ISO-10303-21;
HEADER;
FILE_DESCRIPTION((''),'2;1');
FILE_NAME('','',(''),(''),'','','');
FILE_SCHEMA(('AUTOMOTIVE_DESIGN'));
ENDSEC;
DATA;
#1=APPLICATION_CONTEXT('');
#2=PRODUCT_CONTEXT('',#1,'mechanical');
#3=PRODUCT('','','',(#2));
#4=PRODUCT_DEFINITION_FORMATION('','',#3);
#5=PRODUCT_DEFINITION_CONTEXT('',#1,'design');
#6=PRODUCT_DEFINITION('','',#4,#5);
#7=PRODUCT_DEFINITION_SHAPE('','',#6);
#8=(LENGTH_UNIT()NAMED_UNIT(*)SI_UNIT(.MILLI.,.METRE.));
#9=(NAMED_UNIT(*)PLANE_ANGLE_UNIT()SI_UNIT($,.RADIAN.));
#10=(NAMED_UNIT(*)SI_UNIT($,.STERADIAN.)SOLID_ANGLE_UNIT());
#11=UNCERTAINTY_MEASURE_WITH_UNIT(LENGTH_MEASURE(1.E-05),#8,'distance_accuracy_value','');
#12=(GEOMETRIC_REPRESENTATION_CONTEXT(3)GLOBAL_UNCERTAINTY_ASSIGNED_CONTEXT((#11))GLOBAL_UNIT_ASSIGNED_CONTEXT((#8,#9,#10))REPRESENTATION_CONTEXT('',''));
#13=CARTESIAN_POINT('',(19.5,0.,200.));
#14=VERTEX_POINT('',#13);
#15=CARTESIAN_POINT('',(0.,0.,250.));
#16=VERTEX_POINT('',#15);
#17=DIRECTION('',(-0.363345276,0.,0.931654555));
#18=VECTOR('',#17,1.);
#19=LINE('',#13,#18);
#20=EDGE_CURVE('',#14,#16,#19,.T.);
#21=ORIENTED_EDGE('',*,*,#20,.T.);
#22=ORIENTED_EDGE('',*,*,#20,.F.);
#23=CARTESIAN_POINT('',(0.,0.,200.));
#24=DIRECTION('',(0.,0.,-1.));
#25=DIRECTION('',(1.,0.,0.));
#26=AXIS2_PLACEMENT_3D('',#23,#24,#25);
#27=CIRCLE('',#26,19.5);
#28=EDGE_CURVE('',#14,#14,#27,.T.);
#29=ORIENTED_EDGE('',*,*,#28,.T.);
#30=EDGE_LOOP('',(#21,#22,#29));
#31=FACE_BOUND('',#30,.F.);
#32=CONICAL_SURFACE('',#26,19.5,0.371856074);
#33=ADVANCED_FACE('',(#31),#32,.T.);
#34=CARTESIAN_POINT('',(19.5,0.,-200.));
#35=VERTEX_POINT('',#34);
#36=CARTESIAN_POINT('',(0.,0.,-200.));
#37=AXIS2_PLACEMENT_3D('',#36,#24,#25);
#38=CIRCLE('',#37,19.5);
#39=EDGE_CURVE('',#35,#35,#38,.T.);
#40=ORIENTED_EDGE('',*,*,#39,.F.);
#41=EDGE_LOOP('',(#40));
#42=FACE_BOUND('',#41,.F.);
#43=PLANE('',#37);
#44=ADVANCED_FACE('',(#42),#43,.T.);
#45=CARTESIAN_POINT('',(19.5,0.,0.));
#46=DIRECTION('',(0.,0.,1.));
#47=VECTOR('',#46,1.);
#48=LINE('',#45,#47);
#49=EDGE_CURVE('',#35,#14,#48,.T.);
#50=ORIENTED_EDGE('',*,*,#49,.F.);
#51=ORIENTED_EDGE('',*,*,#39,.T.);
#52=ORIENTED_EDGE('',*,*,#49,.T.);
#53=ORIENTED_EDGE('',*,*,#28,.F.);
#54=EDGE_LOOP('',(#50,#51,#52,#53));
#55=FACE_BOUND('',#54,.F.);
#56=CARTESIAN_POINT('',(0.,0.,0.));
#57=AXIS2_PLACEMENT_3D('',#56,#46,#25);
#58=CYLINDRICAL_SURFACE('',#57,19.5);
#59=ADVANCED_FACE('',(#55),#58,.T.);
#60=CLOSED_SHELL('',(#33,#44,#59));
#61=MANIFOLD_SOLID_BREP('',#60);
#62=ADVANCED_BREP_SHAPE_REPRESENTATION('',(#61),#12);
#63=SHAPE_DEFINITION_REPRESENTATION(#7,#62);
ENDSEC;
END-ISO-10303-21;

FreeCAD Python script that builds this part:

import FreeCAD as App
import Part
import Sketcher

V = App.Vector
Q = App.Units.Quantity


def add_polygon(sketch, points):
    """Adds a closed chain of lines whose ends are joined by coincident constraints."""
    first, n = sketch.GeometryCount, len(points)
    for a, b in zip(points, points[1:] + points[:1]):
        sketch.addGeometry(Part.LineSegment(App.Vector(*a, 0), App.Vector(*b, 0)), False)
    for i in range(n):
        sketch.addConstraint(Sketcher.Constraint("Coincident", first + i, 2, first + (i + 1) % n, 1))

doc = App.newDocument("Part")
body = doc.addObject("PartDesign::Body", "Body")

sketch1 = doc.addObject("Sketcher::SketchObject", "Sketch")
body.addObject(sketch1)
sketch1.AttachmentSupport = (doc.XZ_Plane, [""])
sketch1.MapMode = "FlatFace"
add_polygon(sketch1, [(0, -200), (20, -200), (20, 200), (0, 250)])
sketch1.addConstraint([
    Sketcher.Constraint("Horizontal", 0),
    Sketcher.Constraint("Vertical", 1),
    Sketcher.Constraint("Vertical", 3),
    Sketcher.Constraint("PointOnObject", 2, 2, -2),
    Sketcher.Constraint("DistanceY", 1, 1, 1, 2, Q("400 mm")),
    Sketcher.Constraint("DistanceY", 3, 2, 3, 1, Q("450 mm")),
    Sketcher.Constraint("DistanceX", 0, 1, 0, 2, Q("19.5 mm")),
    Sketcher.Constraint("DistanceY", 0, 2, -1, 1, Q("200 mm")),
])
revolution = doc.addObject("PartDesign::Revolution", "Revolution")
body.addObject(revolution)
revolution.Profile = sketch1
revolution.ReferenceAxis = (sketch1, ["V_Axis"])
revolution.Angle = 360

doc.recompute()
